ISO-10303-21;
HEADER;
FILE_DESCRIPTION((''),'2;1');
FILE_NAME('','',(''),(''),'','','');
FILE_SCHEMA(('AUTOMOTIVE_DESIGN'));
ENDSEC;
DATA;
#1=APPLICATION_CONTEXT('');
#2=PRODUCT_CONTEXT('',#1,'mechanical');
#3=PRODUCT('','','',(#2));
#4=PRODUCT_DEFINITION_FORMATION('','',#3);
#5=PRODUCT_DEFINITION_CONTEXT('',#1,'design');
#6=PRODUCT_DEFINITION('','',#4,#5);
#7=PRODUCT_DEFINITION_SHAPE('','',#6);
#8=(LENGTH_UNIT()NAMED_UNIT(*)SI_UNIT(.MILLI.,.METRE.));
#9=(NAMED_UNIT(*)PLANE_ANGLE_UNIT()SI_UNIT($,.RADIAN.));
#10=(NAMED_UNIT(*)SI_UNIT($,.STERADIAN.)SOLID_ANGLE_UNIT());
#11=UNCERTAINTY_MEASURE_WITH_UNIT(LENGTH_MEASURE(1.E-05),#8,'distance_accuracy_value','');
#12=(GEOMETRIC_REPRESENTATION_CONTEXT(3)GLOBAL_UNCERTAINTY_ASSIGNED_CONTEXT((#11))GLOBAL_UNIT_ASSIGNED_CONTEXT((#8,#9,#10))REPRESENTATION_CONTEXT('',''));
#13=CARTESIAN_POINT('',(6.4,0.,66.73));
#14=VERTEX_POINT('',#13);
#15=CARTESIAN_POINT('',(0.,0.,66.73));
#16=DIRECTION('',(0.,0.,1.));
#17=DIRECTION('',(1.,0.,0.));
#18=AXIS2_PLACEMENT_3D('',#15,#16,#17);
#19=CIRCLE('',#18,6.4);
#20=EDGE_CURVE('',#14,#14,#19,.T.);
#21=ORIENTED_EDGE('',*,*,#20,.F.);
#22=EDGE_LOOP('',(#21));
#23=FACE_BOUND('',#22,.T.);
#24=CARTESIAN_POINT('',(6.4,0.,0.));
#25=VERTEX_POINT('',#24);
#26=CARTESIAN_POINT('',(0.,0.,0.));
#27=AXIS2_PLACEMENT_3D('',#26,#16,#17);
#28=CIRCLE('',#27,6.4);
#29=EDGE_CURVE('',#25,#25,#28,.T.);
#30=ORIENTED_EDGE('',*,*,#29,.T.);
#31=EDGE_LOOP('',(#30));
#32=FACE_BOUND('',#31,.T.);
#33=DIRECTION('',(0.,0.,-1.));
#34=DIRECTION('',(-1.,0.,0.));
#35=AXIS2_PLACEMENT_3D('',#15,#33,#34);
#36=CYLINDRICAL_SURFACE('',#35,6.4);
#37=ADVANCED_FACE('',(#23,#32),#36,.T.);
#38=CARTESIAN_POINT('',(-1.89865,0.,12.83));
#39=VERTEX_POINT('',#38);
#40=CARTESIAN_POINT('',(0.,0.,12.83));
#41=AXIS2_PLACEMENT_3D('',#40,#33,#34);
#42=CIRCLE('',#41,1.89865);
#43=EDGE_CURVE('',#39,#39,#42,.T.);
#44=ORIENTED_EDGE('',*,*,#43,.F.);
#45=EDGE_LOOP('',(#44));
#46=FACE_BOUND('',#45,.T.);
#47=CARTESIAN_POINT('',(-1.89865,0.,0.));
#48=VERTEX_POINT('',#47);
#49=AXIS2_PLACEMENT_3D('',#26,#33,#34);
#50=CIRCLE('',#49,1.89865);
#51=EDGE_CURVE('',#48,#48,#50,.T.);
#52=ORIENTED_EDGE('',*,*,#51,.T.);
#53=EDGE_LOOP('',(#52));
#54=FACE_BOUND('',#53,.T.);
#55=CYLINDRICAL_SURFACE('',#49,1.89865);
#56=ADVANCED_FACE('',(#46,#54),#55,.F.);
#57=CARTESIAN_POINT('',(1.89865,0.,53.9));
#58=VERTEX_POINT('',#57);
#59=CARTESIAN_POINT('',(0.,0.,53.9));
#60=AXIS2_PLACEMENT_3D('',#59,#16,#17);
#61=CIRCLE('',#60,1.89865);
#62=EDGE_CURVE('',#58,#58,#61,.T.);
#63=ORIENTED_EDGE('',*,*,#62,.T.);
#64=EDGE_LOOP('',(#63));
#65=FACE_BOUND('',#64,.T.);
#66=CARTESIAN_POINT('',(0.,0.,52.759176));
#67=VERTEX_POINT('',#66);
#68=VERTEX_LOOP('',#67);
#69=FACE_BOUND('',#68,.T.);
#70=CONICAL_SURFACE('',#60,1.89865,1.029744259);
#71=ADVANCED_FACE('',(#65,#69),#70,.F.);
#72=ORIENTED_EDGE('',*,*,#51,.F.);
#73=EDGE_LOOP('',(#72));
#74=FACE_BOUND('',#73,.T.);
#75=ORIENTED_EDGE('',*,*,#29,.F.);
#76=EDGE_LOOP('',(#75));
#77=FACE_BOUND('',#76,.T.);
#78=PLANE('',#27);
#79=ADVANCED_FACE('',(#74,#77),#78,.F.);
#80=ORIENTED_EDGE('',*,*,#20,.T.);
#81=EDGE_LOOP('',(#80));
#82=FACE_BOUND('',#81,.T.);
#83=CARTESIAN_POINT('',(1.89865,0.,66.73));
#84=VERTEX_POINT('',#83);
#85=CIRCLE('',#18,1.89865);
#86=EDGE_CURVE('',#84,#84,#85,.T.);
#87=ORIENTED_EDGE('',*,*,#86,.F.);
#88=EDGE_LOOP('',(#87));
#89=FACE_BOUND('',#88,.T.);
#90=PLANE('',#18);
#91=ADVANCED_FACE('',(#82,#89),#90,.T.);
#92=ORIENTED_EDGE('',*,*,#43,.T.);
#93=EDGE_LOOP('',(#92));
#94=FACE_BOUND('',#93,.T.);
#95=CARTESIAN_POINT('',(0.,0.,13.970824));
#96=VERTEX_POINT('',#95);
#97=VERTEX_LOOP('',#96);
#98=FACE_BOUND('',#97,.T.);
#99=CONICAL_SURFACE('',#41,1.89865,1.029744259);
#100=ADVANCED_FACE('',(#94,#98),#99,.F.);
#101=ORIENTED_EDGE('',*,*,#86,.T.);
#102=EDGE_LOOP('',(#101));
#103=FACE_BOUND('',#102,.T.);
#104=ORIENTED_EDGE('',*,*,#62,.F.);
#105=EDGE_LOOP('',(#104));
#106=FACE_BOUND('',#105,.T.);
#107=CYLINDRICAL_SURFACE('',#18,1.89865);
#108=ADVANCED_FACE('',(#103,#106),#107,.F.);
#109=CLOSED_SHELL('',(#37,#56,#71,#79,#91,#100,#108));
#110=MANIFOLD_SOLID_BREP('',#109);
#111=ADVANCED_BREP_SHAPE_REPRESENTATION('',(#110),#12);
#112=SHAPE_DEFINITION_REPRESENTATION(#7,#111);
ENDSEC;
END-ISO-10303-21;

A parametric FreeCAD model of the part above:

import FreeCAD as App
import Part
import Sketcher

V = App.Vector
Q = App.Units.Quantity

doc = App.newDocument("Part")
params = doc.addObject("Spreadsheet::Sheet", "Params")
for row, (alias, value) in enumerate([
    ("sketch1_diameter", "12.8 mm"),
    ("pad1_length", "66.73 mm"),
    ("hole_diameter", "3.7973 mm"),
    ("hole_depth", "12.83 mm"),
    ("hole2_diameter", "3.7973 mm"),
    ("hole2_depth", "12.83 mm"),
], start=1):
    params.set(f"A{row}", alias)
    params.set(f"B{row}", "=" + value)
    params.setAlias(f"B{row}", alias)

body = doc.addObject("PartDesign::Body", "Body")

sketch1 = doc.addObject("Sketcher::SketchObject", "Sketch")
body.addObject(sketch1)
sketch1.AttachmentSupport = (doc.XY_Plane, [""])
sketch1.MapMode = "FlatFace"
sketch1.addGeometry(Part.Circle(V(0, 0, 0), V(0, 0, 1), 6), False)
sketch1.addConstraint([
    Sketcher.Constraint("Coincident", 0, 3, -1, 1),
    Sketcher.Constraint("Diameter", 0, Q("12.8 mm")),
])
sketch1.setExpression("Constraints[1]", "Params.sketch1_diameter")
pad1 = doc.addObject("PartDesign::Pad", "Pad")
body.addObject(pad1)
pad1.Profile = sketch1
pad1.setExpression("Length", "Params.pad1_length")

sketch2 = doc.addObject("Sketcher::SketchObject", "Sketch001")
body.addObject(sketch2)
sketch2.AttachmentSupport = (doc.XY_Plane, [""])
sketch2.MapMode = "FlatFace"
sketch2.addGeometry(Part.Circle(V(0, 0, 0), V(0, 0, 1), 1.9), False)
sketch2.addConstraint([
    Sketcher.Constraint("Coincident", 0, 3, -1, 1),
    Sketcher.Constraint("Diameter", 0, Q("3.7973 mm")),
])
doc.recompute()
hole = doc.addObject("PartDesign::Hole", "Hole")
body.addObject(hole)
hole.Profile = sketch2
hole.ThreadType = "None"
hole.setExpression("Diameter", "Params.hole_diameter")
hole.DepthType = "Dimension"
hole.setExpression("Depth", "Params.hole_depth")
hole.DrillPoint = "Angled"
hole.DrillPointAngle = 118
hole.Reversed = True

sketch3 = doc.addObject("Sketcher::SketchObject", "Sketch002")
body.addObject(sketch3)
sketch3.AttachmentSupport = (doc.XY_Plane, [""])
sketch3.MapMode = "FlatFace"
sketch3.AttachmentOffset = App.Placement(V(0, 0, 66.73), App.Rotation())
sketch3.addGeometry(Part.Circle(V(0, 0, 0), V(0, 0, 1), 1.9), False)
sketch3.addConstraint([
    Sketcher.Constraint("Coincident", 0, 3, -1, 1),
    Sketcher.Constraint("Diameter", 0, Q("3.7973 mm")),
])
doc.recompute()
hole2 = doc.addObject("PartDesign::Hole", "Hole001")
body.addObject(hole2)
hole2.Profile = sketch3
hole2.ThreadType = "None"
hole2.setExpression("Diameter", "Params.hole2_diameter")
hole2.DepthType = "Dimension"
hole2.setExpression("Depth", "Params.hole2_depth")
hole2.DrillPoint = "Angled"
hole2.DrillPointAngle = 118

doc.recompute()
